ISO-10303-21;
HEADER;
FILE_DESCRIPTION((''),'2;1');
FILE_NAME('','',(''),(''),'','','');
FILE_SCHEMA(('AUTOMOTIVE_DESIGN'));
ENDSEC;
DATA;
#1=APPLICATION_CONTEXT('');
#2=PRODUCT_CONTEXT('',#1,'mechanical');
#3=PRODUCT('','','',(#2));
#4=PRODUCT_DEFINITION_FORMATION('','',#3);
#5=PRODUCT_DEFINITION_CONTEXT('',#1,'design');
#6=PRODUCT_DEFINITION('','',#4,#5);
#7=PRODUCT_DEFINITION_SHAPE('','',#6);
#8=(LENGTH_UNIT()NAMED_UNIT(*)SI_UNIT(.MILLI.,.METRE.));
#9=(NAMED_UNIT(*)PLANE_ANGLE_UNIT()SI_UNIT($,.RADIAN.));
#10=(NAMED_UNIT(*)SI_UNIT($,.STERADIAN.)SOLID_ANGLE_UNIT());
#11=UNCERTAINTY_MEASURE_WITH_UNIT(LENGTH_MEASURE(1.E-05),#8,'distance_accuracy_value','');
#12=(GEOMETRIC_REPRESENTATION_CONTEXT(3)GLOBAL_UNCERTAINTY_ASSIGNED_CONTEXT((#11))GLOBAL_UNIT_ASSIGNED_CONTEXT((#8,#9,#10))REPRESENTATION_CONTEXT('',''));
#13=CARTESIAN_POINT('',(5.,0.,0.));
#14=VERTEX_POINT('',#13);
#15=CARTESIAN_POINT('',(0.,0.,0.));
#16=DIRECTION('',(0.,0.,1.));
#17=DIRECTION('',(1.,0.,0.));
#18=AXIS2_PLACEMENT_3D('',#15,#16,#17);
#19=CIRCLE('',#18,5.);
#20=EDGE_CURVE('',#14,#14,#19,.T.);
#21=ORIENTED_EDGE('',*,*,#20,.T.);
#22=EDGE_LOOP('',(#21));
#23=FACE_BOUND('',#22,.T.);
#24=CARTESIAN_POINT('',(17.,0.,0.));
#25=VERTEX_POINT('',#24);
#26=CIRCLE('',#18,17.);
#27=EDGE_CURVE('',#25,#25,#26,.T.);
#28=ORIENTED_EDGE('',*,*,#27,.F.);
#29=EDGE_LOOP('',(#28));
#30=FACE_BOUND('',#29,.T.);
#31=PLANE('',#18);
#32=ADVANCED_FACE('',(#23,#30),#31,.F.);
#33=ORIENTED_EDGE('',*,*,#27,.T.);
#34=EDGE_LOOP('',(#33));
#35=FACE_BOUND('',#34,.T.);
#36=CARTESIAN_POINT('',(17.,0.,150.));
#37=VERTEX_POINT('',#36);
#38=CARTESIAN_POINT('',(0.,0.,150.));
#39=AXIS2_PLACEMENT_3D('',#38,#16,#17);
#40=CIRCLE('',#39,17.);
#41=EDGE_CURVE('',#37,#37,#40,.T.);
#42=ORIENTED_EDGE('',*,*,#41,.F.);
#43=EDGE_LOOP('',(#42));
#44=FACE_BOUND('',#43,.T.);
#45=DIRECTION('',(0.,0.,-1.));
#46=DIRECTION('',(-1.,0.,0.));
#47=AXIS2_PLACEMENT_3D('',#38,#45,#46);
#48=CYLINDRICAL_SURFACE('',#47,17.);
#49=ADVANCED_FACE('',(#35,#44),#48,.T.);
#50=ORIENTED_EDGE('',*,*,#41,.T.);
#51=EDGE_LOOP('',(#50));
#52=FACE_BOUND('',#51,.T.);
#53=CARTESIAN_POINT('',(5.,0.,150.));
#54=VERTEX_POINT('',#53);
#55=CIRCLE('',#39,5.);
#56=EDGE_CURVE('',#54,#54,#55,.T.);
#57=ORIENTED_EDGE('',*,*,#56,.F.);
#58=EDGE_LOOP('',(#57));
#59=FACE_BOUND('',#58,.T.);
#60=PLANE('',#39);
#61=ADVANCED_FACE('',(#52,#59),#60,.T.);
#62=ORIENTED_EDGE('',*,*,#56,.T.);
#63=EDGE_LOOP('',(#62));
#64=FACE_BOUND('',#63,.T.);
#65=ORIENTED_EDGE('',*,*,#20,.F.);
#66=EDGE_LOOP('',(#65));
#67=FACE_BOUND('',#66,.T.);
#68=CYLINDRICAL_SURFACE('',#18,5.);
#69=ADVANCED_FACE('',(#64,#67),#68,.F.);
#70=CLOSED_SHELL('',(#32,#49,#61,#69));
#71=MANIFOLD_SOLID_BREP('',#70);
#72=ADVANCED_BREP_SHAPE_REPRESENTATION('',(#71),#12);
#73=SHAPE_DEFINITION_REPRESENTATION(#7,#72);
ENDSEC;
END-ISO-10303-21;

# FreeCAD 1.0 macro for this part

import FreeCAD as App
import Part
import Sketcher
from FreeCAD import Vector
Q = App.Units.Quantity

doc = App.newDocument("Part")
body = doc.addObject("PartDesign::Body", "Body")

sketch1 = body.newObject("Sketcher::SketchObject", "Sketch")
sketch1.AttachmentSupport = (doc.getObject("XY_Plane"), [""])
sketch1.MapMode = "FlatFace"
sketch1.addGeometry(Part.Circle(Vector(0, 0, 0), Vector(0, 0, 1), 17), False)
sketch1.addConstraint([
    Sketcher.Constraint("Coincident", 0, 3, -1, 1),
    Sketcher.Constraint("Diameter", 0, Q("34 mm")),
])
pad1 = body.newObject("PartDesign::Pad", "Pad")
pad1.Profile = sketch1
pad1.Length = 150

sketch2 = body.newObject("Sketcher::SketchObject", "Sketch001")
sketch2.AttachmentSupport = (doc.getObject("XY_Plane"), [""])
sketch2.MapMode = "FlatFace"
sketch2.AttachmentOffset = App.Placement(Vector(0, 0, 150), App.Rotation())
sketch2.addGeometry(Part.Circle(Vector(0, 0, 0), Vector(0, 0, 1), 5), False)
sketch2.addConstraint([
    Sketcher.Constraint("Coincident", 0, 3, -1, 1),
    Sketcher.Constraint("Diameter", 0, Q("10 mm")),
])
pocket1 = body.newObject("PartDesign::Pocket", "Pocket")
pocket1.Profile = sketch2
pocket1.Length = 150

doc.recompute()
